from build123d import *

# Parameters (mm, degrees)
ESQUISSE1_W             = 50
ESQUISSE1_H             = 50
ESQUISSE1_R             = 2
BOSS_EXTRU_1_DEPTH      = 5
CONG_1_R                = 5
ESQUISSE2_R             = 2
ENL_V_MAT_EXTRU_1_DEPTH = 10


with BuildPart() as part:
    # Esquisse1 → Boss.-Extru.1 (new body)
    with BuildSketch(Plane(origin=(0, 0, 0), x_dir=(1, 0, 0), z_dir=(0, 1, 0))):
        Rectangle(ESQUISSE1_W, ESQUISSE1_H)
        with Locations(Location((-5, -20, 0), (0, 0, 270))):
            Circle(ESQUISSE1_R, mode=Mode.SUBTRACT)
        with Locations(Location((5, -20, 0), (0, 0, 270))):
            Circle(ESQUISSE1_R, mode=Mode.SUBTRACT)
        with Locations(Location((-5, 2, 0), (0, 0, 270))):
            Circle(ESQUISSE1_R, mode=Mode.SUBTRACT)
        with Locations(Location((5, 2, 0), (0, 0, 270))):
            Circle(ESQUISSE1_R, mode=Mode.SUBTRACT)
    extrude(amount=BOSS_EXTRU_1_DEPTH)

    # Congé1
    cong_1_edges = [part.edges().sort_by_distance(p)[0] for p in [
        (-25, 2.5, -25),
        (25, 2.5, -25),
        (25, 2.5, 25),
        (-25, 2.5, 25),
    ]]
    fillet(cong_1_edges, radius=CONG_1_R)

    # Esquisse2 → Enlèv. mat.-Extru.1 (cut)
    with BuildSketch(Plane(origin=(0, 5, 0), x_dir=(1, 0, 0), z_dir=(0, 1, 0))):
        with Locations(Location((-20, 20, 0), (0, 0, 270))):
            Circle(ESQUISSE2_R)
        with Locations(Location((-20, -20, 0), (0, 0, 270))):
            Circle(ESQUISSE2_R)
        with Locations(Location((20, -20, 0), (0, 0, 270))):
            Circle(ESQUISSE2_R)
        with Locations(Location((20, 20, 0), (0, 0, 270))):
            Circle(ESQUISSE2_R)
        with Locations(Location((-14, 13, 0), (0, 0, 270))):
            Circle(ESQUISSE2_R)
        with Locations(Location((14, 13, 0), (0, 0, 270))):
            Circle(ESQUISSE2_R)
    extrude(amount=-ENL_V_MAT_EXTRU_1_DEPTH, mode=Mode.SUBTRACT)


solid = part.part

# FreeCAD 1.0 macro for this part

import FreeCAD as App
import Part
import Sketcher
from FreeCAD import Vector


def edges_at(feature, points):
    """Names of the edges that pass closest to the given points."""
    edges = feature.Shape.Edges
    near = lambda p: min(range(len(edges)), key=lambda i: edges[i].distToShape(Part.Vertex(*p))[0])
    return sorted({f"Edge{near(p) + 1}" for p in points})

doc = App.newDocument("Part")
params = doc.addObject("Spreadsheet::Sheet", "Params")
for row, (alias, value) in enumerate([
    ("sketch1_diameter", "4 mm"),
    ("sketch1_width", "50 mm"),
    ("pad1_length", "5 mm"),
    ("fillet_radius", "5 mm"),
    ("sketch2_diameter", "4 mm"),
    ("pocket1_length", "10 mm"),
], start=1):
    params.set(f"A{row}", alias)
    params.set(f"B{row}", "=" + value)
    params.setAlias(f"B{row}", alias)

body = doc.addObject("PartDesign::Body", "Body")

# Sketch on XZ plane
sketch1 = body.newObject("Sketcher::SketchObject", "Sketch")
sketch1.AttachmentSupport = (doc.getObject("XZ_Plane"), [""])
sketch1.MapMode = "FlatFace"
sketch1.addGeometry(Part.LineSegment(Vector(-25, -25, 0), Vector(-25, 25, 0)), False)
sketch1.addGeometry(Part.LineSegment(Vector(-25, 25, 0), Vector(25, 25, 0)), False)
sketch1.addGeometry(Part.LineSegment(Vector(25, 25, 0), Vector(25, -25, 0)), False)
sketch1.addGeometry(Part.LineSegment(Vector(25, -25, 0), Vector(-25, -25, 0)), False)
sketch1.addGeometry(Part.Circle(Vector(-5, 20, 0), Vector(0, 0, 1), 2), False)
sketch1.addGeometry(Part.Circle(Vector(5, 20, 0), Vector(0, 0, 1), 2), False)
sketch1.addGeometry(Part.Circle(Vector(-5, -2, 0), Vector(0, 0, 1), 2), False)
sketch1.addGeometry(Part.Circle(Vector(5, -2, 0), Vector(0, 0, 1), 2), False)
sketch1.addConstraint(Sketcher.Constraint("Coincident", 0, 2, 1, 1))
sketch1.addConstraint(Sketcher.Constraint("Coincident", 1, 2, 2, 1))
sketch1.addConstraint(Sketcher.Constraint("Coincident", 2, 2, 3, 1))
sketch1.addConstraint(Sketcher.Constraint("Coincident", 3, 2, 0, 1))
sketch1.addConstraint(Sketcher.Constraint("Vertical", 0))
sketch1.addConstraint(Sketcher.Constraint("Horizontal", 1))
sketch1.addConstraint(Sketcher.Constraint("Vertical", 2))
sketch1.addConstraint(Sketcher.Constraint("Horizontal", 3))
sketch1.addConstraint(Sketcher.Constraint("Equal", 4, 5))
sketch1.addConstraint(Sketcher.Constraint("Equal", 5, 6))
sketch1.addConstraint(Sketcher.Constraint("Equal", 6, 7))
sketch1.addConstraint(Sketcher.Constraint("Symmetric", 0, 2, 2, 2, -1, 1))
sketch1.addConstraint(Sketcher.Constraint("Symmetric", 4, 3, 5, 3, -2))
sketch1.addConstraint(Sketcher.Constraint("Symmetric", 6, 3, 7, 3, -2))
sketch1.addConstraint(Sketcher.Constraint("Vertical", 4, 3, 6, 3))
sketch1.addConstraint(Sketcher.Constraint("Equal", 3, 0))
sketch1.addConstraint(Sketcher.Constraint("Diameter", 4, 4.0))
sketch1.addConstraint(Sketcher.Constraint("DistanceX", 1, 1, 1, 2, 50.0))
sketch1.addConstraint(Sketcher.Constraint("DistanceX", 4, 3, -1, 1, 5.0))
sketch1.addConstraint(Sketcher.Constraint("DistanceY", -1, 1, 4, 3, 20.0))
sketch1.addConstraint(Sketcher.Constraint("DistanceY", 6, 3, -1, 1, 2.0))
sketch1.setExpression("Constraints[16]", "Params.sketch1_diameter")
sketch1.setExpression("Constraints[17]", "Params.sketch1_width")
pad1 = body.newObject("PartDesign::Pad", "Pad")
pad1.Profile = sketch1
pad1.setExpression("Length", "Params.pad1_length")
pad1.Reversed = True
doc.recompute()

fillet = body.newObject("PartDesign::Fillet", "Fillet")
fillet.Base = (pad1, edges_at(pad1, [
    (-25, 2.5, -25),
    (25, 2.5, -25),
    (25, 2.5, 25),
    (-25, 2.5, 25),
]))
fillet.setExpression("Radius", "Params.fillet_radius")

# Sketch on XZ plane
sketch2 = body.newObject("Sketcher::SketchObject", "Sketch001")
sketch2.AttachmentSupport = (doc.getObject("XZ_Plane"), [""])
sketch2.MapMode = "FlatFace"
sketch2.AttachmentOffset = App.Placement(Vector(0, 0, -5), App.Rotation())
sketch2.addGeometry(Part.Circle(Vector(-20, -20, 0), Vector(0, 0, 1), 2), False)
sketch2.addGeometry(Part.Circle(Vector(-20, 20, 0), Vector(0, 0, 1), 2), False)
sketch2.addGeometry(Part.Circle(Vector(20, 20, 0), Vector(0, 0, 1), 2), False)
sketch2.addGeometry(Part.Circle(Vector(20, -20, 0), Vector(0, 0, 1), 2), False)
sketch2.addGeometry(Part.Circle(Vector(-14, -13, 0), Vector(0, 0, 1), 2), False)
sketch2.addGeometry(Part.Circle(Vector(14, -13, 0), Vector(0, 0, 1), 2), False)
sketch2.addConstraint(Sketcher.Constraint("Equal", 0, 1))
sketch2.addConstraint(Sketcher.Constraint("Equal", 1, 2))
sketch2.addConstraint(Sketcher.Constraint("Equal", 2, 3))
sketch2.addConstraint(Sketcher.Constraint("Equal", 3, 4))
sketch2.addConstraint(Sketcher.Constraint("Equal", 4, 5))
sketch2.addConstraint(Sketcher.Constraint("Symmetric", 0, 3, 2, 3, -1, 1))
sketch2.addConstraint(Sketcher.Constraint("Symmetric", 1, 3, 3, 3, -1, 1))
sketch2.addConstraint(Sketcher.Constraint("Symmetric", 1, 3, 2, 3, -2))
sketch2.addConstraint(Sketcher.Constraint("Symmetric", 4, 3, 5, 3, -2))
sketch2.addConstraint(Sketcher.Constraint("Diameter", 0, 4.0))
sketch2.addConstraint(Sketcher.Constraint("DistanceX", 0, 3, -1, 1, 20.0))
sketch2.addConstraint(Sketcher.Constraint("DistanceY", 0, 3, -1, 1, 20.0))
sketch2.addConstraint(Sketcher.Constraint("DistanceX", 4, 3, -1, 1, 14.0))
sketch2.addConstraint(Sketcher.Constraint("DistanceY", 4, 3, -1, 1, 13.0))
sketch2.setExpression("Constraints[9]", "Params.sketch2_diameter")
pocket1 = body.newObject("PartDesign::Pocket", "Pocket")
pocket1.Profile = sketch2
pocket1.setExpression("Length", "Params.pocket1_length")
pocket1.Reversed = True

doc.recompute()
